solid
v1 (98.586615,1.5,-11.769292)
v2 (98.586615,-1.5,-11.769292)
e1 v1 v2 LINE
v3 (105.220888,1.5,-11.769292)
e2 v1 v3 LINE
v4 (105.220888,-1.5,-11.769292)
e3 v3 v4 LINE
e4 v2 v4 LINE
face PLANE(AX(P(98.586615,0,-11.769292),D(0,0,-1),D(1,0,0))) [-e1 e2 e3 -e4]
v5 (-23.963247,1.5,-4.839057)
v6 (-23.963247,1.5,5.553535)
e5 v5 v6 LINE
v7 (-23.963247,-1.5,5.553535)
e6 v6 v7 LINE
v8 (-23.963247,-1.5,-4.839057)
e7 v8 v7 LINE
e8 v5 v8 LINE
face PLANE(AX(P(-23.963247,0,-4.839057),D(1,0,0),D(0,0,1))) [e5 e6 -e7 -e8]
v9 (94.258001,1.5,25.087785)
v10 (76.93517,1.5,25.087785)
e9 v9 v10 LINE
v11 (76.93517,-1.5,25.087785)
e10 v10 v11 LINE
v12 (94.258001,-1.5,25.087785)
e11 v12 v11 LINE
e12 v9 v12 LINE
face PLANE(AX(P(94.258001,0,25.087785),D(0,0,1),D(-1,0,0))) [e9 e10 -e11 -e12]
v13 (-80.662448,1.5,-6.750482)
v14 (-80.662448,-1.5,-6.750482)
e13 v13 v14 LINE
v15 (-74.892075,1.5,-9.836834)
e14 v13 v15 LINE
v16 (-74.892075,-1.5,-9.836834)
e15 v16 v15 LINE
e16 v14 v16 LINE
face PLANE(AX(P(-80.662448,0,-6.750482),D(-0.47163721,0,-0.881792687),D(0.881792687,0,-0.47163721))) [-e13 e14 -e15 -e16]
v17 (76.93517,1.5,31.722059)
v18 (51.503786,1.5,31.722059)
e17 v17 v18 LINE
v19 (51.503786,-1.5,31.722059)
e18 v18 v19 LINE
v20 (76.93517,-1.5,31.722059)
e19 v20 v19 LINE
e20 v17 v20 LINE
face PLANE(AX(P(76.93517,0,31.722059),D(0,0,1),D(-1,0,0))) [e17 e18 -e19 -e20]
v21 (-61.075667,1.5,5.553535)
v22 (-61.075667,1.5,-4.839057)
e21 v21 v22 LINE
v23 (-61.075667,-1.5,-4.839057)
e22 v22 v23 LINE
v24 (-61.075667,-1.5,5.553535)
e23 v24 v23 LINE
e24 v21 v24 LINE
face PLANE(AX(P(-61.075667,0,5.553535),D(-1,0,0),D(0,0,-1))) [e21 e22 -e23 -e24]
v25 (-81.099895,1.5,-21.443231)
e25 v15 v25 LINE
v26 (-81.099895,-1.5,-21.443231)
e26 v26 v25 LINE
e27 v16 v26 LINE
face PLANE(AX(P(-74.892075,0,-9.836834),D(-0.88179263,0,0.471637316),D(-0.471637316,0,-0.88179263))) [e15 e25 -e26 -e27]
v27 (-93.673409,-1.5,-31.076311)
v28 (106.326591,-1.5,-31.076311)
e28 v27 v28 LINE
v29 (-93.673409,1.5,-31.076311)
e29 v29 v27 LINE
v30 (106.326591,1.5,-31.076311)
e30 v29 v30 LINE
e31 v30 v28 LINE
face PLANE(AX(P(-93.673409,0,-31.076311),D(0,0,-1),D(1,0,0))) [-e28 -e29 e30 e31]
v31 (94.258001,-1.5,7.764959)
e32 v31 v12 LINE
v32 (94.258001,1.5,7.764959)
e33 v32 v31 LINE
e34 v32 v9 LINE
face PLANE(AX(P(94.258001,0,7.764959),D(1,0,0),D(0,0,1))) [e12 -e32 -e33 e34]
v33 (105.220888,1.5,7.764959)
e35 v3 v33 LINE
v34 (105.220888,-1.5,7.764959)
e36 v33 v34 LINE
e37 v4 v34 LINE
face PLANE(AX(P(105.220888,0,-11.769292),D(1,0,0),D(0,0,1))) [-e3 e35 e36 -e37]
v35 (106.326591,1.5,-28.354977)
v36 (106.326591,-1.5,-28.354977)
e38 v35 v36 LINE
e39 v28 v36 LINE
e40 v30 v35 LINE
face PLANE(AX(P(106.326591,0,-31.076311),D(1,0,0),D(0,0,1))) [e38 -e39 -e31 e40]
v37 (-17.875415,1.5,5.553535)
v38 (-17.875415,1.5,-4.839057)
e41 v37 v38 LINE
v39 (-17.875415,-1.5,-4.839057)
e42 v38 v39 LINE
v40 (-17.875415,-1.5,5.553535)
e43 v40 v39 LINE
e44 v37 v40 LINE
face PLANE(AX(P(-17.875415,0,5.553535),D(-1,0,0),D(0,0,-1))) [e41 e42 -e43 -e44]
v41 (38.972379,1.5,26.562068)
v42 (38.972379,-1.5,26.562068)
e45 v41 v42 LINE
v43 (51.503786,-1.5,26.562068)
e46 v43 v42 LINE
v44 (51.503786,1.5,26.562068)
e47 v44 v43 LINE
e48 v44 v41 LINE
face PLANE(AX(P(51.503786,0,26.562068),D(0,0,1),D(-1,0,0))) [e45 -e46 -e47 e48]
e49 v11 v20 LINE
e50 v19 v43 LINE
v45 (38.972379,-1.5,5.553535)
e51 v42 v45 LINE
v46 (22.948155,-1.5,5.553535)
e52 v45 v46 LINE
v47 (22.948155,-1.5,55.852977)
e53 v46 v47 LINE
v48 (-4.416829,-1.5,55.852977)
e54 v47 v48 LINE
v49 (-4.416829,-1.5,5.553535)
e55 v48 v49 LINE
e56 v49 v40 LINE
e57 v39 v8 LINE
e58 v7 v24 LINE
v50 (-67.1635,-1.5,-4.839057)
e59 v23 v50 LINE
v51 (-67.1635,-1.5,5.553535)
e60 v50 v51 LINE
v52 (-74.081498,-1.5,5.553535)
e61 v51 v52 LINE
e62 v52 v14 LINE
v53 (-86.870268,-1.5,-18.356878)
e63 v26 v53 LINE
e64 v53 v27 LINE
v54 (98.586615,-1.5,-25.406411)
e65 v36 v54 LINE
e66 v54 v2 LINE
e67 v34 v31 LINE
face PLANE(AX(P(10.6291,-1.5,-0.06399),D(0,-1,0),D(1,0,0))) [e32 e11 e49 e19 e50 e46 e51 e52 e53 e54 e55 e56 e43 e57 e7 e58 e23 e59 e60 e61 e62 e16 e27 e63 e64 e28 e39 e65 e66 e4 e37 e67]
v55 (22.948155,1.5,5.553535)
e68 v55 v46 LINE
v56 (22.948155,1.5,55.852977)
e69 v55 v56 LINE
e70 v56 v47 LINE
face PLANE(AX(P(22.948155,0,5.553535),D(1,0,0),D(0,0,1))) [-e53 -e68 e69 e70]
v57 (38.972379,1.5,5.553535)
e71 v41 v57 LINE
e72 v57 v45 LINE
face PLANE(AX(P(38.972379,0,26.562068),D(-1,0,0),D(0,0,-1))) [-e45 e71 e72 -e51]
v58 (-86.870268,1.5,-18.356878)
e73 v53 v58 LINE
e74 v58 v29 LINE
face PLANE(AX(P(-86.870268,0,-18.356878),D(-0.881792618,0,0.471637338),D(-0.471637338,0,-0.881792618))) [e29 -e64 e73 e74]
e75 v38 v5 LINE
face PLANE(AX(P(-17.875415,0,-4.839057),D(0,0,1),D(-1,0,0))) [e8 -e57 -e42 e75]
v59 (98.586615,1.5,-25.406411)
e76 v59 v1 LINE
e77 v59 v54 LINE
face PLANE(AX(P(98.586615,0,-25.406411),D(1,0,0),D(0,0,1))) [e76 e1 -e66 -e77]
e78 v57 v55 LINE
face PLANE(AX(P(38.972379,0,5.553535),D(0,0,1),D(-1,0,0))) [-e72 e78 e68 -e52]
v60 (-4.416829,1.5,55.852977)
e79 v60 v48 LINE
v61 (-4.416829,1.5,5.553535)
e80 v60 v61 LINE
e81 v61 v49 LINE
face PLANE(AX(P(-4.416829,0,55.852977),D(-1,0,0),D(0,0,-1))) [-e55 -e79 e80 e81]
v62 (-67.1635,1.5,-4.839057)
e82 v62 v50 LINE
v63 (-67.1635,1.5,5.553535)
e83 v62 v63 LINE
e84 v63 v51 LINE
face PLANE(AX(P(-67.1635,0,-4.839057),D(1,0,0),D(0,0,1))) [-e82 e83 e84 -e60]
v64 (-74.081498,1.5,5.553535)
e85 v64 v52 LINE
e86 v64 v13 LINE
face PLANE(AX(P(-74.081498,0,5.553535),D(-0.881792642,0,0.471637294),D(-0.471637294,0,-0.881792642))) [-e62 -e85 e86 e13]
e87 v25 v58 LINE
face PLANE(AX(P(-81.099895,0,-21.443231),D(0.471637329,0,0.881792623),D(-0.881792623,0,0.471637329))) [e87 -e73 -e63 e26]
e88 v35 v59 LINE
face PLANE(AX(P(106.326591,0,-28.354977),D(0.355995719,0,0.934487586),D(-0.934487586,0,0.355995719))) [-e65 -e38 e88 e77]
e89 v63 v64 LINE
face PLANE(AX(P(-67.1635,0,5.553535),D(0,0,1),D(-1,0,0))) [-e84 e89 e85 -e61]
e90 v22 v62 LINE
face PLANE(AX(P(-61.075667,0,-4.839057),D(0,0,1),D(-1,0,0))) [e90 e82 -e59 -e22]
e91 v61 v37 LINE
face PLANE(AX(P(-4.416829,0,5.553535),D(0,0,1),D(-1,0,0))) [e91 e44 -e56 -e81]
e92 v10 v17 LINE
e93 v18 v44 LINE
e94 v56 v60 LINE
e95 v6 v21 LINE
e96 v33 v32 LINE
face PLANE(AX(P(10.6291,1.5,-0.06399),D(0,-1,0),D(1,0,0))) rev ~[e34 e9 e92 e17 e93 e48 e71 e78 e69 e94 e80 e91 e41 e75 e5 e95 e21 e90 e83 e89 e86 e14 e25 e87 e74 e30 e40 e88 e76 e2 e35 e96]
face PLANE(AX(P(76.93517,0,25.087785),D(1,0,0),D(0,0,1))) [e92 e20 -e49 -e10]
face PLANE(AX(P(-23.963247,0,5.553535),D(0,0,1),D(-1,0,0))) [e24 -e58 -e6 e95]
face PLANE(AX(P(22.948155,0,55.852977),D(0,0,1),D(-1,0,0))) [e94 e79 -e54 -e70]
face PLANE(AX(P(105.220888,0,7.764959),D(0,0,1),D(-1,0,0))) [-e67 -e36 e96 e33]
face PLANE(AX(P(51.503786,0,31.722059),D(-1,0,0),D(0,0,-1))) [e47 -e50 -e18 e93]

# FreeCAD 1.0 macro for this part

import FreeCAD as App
import Part
import Sketcher
Q = App.Units.Quantity


def add_polygon(sketch, points):
    """Adds a closed chain of lines whose ends are joined by coincident constraints."""
    first, n = sketch.GeometryCount, len(points)
    for a, b in zip(points, points[1:] + points[:1]):
        sketch.addGeometry(Part.LineSegment(App.Vector(*a, 0), App.Vector(*b, 0)), False)
    for i in range(n):
        sketch.addConstraint(Sketcher.Constraint("Coincident", first + i, 2, first + (i + 1) % n, 1))

doc = App.newDocument("Part")
body = doc.addObject("PartDesign::Body", "Body")

sketch1 = body.newObject("Sketcher::SketchObject", "Sketch")
sketch1.AttachmentSupport = (doc.getObject("XZ_Plane"), [""])
sketch1.MapMode = "FlatFace"
add_polygon(sketch1, [(-86.9, -18.4), (-93.7, -31.1), (106.3, -31.1), (106.3, -28.4), (98.6, -25.4), (98.6, -11.8), (105.2, -11.8), (105.2, 7.8), (94.3, 7.8), (94.3, 25.1), (76.9, 25.1), (76.9, 31.7), (51.5, 31.7), (51.5, 26.6), (39, 26.6), (39, 5.6), (22.9, 5.6), (22.9, 55.9), (-4.4, 55.9), (-4.4, 5.6), (-17.9, 5.6), (-17.9, -4.8), (-24, -4.8), (-24, 5.6), (-61.1, 5.6), (-61.1, -4.8), (-67.2, -4.8), (-67.2, 5.6), (-74.1, 5.6), (-80.7, -6.8), (-74.9, -9.8), (-81.1, -21.4)])
sketch1.addConstraint(Sketcher.Constraint("Horizontal", 1))
sketch1.addConstraint(Sketcher.Constraint("Vertical", 2))
sketch1.addConstraint(Sketcher.Constraint("Vertical", 4))
sketch1.addConstraint(Sketcher.Constraint("Horizontal", 5))
sketch1.addConstraint(Sketcher.Constraint("Vertical", 6))
sketch1.addConstraint(Sketcher.Constraint("Horizontal", 7))
sketch1.addConstraint(Sketcher.Constraint("Vertical", 8))
sketch1.addConstraint(Sketcher.Constraint("Horizontal", 9))
sketch1.addConstraint(Sketcher.Constraint("Vertical", 10))
sketch1.addConstraint(Sketcher.Constraint("Horizontal", 11))
sketch1.addConstraint(Sketcher.Constraint("Vertical", 12))
sketch1.addConstraint(Sketcher.Constraint("Horizontal", 13))
sketch1.addConstraint(Sketcher.Constraint("Vertical", 14))
sketch1.addConstraint(Sketcher.Constraint("Horizontal", 15))
sketch1.addConstraint(Sketcher.Constraint("Vertical", 16))
sketch1.addConstraint(Sketcher.Constraint("Horizontal", 17))
sketch1.addConstraint(Sketcher.Constraint("Vertical", 18))
sketch1.addConstraint(Sketcher.Constraint("Horizontal", 19))
sketch1.addConstraint(Sketcher.Constraint("Vertical", 20))
sketch1.addConstraint(Sketcher.Constraint("Horizontal", 21))
sketch1.addConstraint(Sketcher.Constraint("Vertical", 22))
sketch1.addConstraint(Sketcher.Constraint("Horizontal", 23))
sketch1.addConstraint(Sketcher.Constraint("Vertical", 24))
sketch1.addConstraint(Sketcher.Constraint("Horizontal", 25))
sketch1.addConstraint(Sketcher.Constraint("Vertical", 26))
sketch1.addConstraint(Sketcher.Constraint("Horizontal", 27))
sketch1.addConstraint(Sketcher.Constraint("Parallel", 0, 28))
sketch1.addConstraint(Sketcher.Constraint("Perpendicular", 28, 29))
sketch1.addConstraint(Sketcher.Constraint("Perpendicular", 29, 30))
sketch1.addConstraint(Sketcher.Constraint("Perpendicular", 30, 31))
sketch1.addConstraint(Sketcher.Constraint("Horizontal", 15, 2, 18, 2))
sketch1.addConstraint(Sketcher.Constraint("Horizontal", 19, 2, 22, 2))
sketch1.addConstraint(Sketcher.Constraint("Horizontal", 21, 2, 24, 2))
sketch1.addConstraint(Sketcher.Constraint("Horizontal", 23, 2, 26, 2))
sketch1.addConstraint(Sketcher.Constraint("Equal", 21, 25))
sketch1.addConstraint(Sketcher.Constraint("Equal", 5, 10))
sketch1.addConstraint(Sketcher.Constraint("Equal", 29, 31))
sketch1.addConstraint(Sketcher.Constraint("DistanceX", 1, 1, 1, 2, Q("200 mm")))
sketch1.addConstraint(Sketcher.Constraint("DistanceX", -1, 1, 7, 2, Q("94.258001 mm")))
sketch1.addConstraint(Sketcher.Constraint("DistanceX", 9, 2, 9, 1, Q("17.322831 mm")))
sketch1.addConstraint(Sketcher.Constraint("DistanceX", 21, 2, 21, 1, Q("6.087832 mm")))
sketch1.addConstraint(Sketcher.Constraint("DistanceX", 23, 2, 23, 1, Q("37.11242 mm")))
sketch1.addConstraint(Sketcher.Constraint("DistanceY", 4, 1, 4, 2, Q("13.637119 mm")))
sketch1.addConstraint(Sketcher.Constraint("DistanceY", 6, 1, 6, 2, Q("19.534251 mm")))
sketch1.addConstraint(Sketcher.Constraint("DistanceY", 12, 2, 12, 1, Q("5.159991 mm")))
sketch1.addConstraint(Sketcher.Constraint("DistanceX", 25, 2, -1, 1, Q("67.1635 mm")))
sketch1.addConstraint(Sketcher.Constraint("DistanceY", 1, 2, 3, 2, Q("5.6699 mm")))
sketch1.addConstraint(Sketcher.Constraint("DistanceY", 7, 2, 10, 2, Q("23.9571 mm")))
sketch1.addConstraint(Sketcher.Constraint("DistanceX", 21, 2, 15, 2, Q("46.911402 mm")))
sketch1.addConstraint(Sketcher.Constraint("Distance", 3, Q("8.282588 mm")))
sketch1.addConstraint(Sketcher.Constraint("Distance", 29, Q("6.543911 mm")))
sketch1.addConstraint(Sketcher.Constraint("DistanceX", 5, 1, 5, 2, Q("6.634273 mm")))
sketch1.addConstraint(Sketcher.Constraint("DistanceX", 7, 2, 7, 1, Q("10.962887 mm")))
sketch1.addConstraint(Sketcher.Constraint("DistanceX", 11, 2, 11, 1, Q("25.431384 mm")))
sketch1.addConstraint(Sketcher.Constraint("DistanceX", 13, 2, 13, 1, Q("12.531407 mm")))
sketch1.addConstraint(Sketcher.Constraint("DistanceX", 17, 2, 17, 1, Q("27.364984 mm")))
sketch1.addConstraint(Sketcher.Constraint("DistanceX", 27, 2, 27, 1, Q("6.917998 mm")))
sketch1.addConstraint(Sketcher.Constraint("DistanceY", 2, 1, 2, 2, Q("2.721334 mm")))
sketch1.addConstraint(Sketcher.Constraint("DistanceY", 14, 2, 14, 1, Q("21.008533 mm")))
sketch1.addConstraint(Sketcher.Constraint("DistanceY", 16, 1, 16, 2, Q("50.299442 mm")))
sketch1.addConstraint(Sketcher.Constraint("DistanceY", 20, 2, 20, 1, Q("10.392592 mm")))
sketch1.addConstraint(Sketcher.Constraint("DistanceY", 0, 2, -1, 1, Q("31.076311 mm")))
sketch1.addConstraint(Sketcher.Constraint("DistanceY", 30, 2, -1, 1, Q("21.443231 mm")))
sketch1.addConstraint(Sketcher.Constraint("DistanceX", 28, 2, 27, 2, Q("6.58095 mm")))
pad1 = body.newObject("PartDesign::Pad", "Pad")
pad1.Profile = sketch1
pad1.Length = 3
pad1.Midplane = True

doc.recompute()
